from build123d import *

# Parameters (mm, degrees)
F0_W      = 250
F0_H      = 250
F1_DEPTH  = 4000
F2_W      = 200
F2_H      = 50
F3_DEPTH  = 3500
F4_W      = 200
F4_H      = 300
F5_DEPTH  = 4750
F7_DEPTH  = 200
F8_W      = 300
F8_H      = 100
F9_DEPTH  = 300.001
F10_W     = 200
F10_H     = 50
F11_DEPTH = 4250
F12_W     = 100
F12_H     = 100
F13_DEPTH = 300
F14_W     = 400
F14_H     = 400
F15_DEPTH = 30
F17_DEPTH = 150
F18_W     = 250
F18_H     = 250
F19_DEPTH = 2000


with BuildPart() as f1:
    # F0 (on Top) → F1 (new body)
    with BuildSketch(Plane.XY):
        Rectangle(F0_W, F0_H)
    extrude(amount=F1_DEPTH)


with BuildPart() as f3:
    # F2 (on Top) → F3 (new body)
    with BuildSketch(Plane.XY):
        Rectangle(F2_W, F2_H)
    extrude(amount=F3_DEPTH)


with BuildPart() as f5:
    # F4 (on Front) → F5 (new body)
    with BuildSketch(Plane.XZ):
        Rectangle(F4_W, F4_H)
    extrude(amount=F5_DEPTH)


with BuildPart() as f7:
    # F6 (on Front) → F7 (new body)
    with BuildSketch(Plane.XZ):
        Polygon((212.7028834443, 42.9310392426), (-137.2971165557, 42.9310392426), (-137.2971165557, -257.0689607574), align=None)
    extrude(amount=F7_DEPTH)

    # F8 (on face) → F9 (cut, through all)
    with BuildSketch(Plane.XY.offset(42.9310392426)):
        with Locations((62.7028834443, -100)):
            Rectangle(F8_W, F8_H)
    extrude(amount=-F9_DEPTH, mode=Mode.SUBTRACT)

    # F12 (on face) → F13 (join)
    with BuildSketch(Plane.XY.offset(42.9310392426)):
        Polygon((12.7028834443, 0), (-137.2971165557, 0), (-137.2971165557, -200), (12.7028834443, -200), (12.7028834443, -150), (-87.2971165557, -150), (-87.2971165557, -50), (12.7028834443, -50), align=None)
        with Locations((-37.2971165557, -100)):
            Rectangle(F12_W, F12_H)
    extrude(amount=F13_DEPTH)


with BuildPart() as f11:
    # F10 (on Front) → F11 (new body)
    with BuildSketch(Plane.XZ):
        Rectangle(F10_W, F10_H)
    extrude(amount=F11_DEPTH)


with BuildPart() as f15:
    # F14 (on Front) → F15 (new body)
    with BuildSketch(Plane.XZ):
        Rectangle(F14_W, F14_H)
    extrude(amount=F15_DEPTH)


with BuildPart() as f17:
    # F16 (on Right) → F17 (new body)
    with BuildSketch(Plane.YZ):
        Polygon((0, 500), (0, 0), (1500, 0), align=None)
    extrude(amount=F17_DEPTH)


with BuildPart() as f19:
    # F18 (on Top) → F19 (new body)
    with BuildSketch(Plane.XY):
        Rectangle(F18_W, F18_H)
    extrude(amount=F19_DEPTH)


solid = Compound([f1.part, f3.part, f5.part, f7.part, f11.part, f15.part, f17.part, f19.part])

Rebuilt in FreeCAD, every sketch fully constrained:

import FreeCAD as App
import Part
import Sketcher
Q = App.Units.Quantity

doc = App.newDocument("Part")
body = doc.addObject("PartDesign::Body", "Body")

# Sketch on XY plane
sketch1 = body.newObject("Sketcher::SketchObject", "Sketch")
sketch1.AttachmentSupport = (doc.getObject("XY_Plane"), [""])
sketch1.MapMode = "FlatFace"
sketch1.addGeometry([
    Part.LineSegment(App.Vector(-125, 125, 0), App.Vector(-125, -125, 0)),
    Part.LineSegment(App.Vector(-125, -125, 0), App.Vector(125, -125, 0)),
    Part.LineSegment(App.Vector(125, -125, 0), App.Vector(125, 125, 0)),
    Part.LineSegment(App.Vector(125, 125, 0), App.Vector(-125, 125, 0)),
], False)
sketch1.addConstraint([
    Sketcher.Constraint("Coincident", 0, 2, 1, 1),
    Sketcher.Constraint("Coincident", 1, 2, 2, 1),
    Sketcher.Constraint("Coincident", 2, 2, 3, 1),
    Sketcher.Constraint("Coincident", 3, 2, 0, 1),
    Sketcher.Constraint("Vertical", 0),
    Sketcher.Constraint("Horizontal", 1),
    Sketcher.Constraint("Vertical", 2),
    Sketcher.Constraint("Horizontal", 3),
    Sketcher.Constraint("Symmetric", 0, 2, 2, 2, -1, 1),
    Sketcher.Constraint("Equal", 3, 0),
    Sketcher.Constraint("DistanceX", 1, 1, 1, 2, Q("250 mm")),
])
pad1 = body.newObject("PartDesign::Pad", "Pad")
pad1.Profile = sketch1
pad1.Length = 4000
body2 = doc.addObject("PartDesign::Body", "Body001")

# Sketch on XY plane
sketch2 = body2.newObject("Sketcher::SketchObject", "Sketch001")
sketch2.AttachmentSupport = (doc.getObject("XY_Plane001"), [""])
sketch2.MapMode = "FlatFace"
sketch2.addGeometry([
    Part.LineSegment(App.Vector(-100, 25, 0), App.Vector(-100, -25, 0)),
    Part.LineSegment(App.Vector(-100, -25, 0), App.Vector(100, -25, 0)),
    Part.LineSegment(App.Vector(100, -25, 0), App.Vector(100, 25, 0)),
    Part.LineSegment(App.Vector(100, 25, 0), App.Vector(-100, 25, 0)),
], False)
sketch2.addConstraint([
    Sketcher.Constraint("Coincident", 0, 2, 1, 1),
    Sketcher.Constraint("Coincident", 1, 2, 2, 1),
    Sketcher.Constraint("Coincident", 2, 2, 3, 1),
    Sketcher.Constraint("Coincident", 3, 2, 0, 1),
    Sketcher.Constraint("Vertical", 0),
    Sketcher.Constraint("Horizontal", 1),
    Sketcher.Constraint("Vertical", 2),
    Sketcher.Constraint("Horizontal", 3),
    Sketcher.Constraint("Symmetric", 0, 2, 2, 2, -1, 1),
    Sketcher.Constraint("DistanceX", 1, 1, 1, 2, Q("200 mm")),
    Sketcher.Constraint("DistanceY", 0, 2, 0, 1, Q("50 mm")),
])
pad2 = body2.newObject("PartDesign::Pad", "Pad001")
pad2.Profile = sketch2
pad2.Length = 3500
body3 = doc.addObject("PartDesign::Body", "Body002")

# Sketch on XZ plane
sketch3 = body3.newObject("Sketcher::SketchObject", "Sketch002")
sketch3.AttachmentSupport = (doc.getObject("XZ_Plane002"), [""])
sketch3.MapMode = "FlatFace"
sketch3.addGeometry([
    Part.LineSegment(App.Vector(-100, 150, 0), App.Vector(-100, -150, 0)),
    Part.LineSegment(App.Vector(-100, -150, 0), App.Vector(100, -150, 0)),
    Part.LineSegment(App.Vector(100, -150, 0), App.Vector(100, 150, 0)),
    Part.LineSegment(App.Vector(100, 150, 0), App.Vector(-100, 150, 0)),
], False)
sketch3.addConstraint([
    Sketcher.Constraint("Coincident", 0, 2, 1, 1),
    Sketcher.Constraint("Coincident", 1, 2, 2, 1),
    Sketcher.Constraint("Coincident", 2, 2, 3, 1),
    Sketcher.Constraint("Coincident", 3, 2, 0, 1),
    Sketcher.Constraint("Vertical", 0),
    Sketcher.Constraint("Horizontal", 1),
    Sketcher.Constraint("Vertical", 2),
    Sketcher.Constraint("Horizontal", 3),
    Sketcher.Constraint("Symmetric", 0, 2, 2, 2, -1, 1),
    Sketcher.Constraint("DistanceX", 1, 1, 1, 2, Q("200 mm")),
    Sketcher.Constraint("DistanceY", 0, 2, 0, 1, Q("300 mm")),
])
pad3 = body3.newObject("PartDesign::Pad", "Pad002")
pad3.Profile = sketch3
pad3.Length = 4750
body4 = doc.addObject("PartDesign::Body", "Body003")

# Sketch on XZ plane
sketch4 = body4.newObject("Sketcher::SketchObject", "Sketch003")
sketch4.AttachmentSupport = (doc.getObject("XZ_Plane003"), [""])
sketch4.MapMode = "FlatFace"
sketch4.addGeometry([
    Part.LineSegment(App.Vector(212.702883, 42.931039, 0), App.Vector(-137.297117, 42.931039, 0)),
    Part.LineSegment(App.Vector(-137.297117, 42.931039, 0), App.Vector(-137.297117, -257.068961, 0)),
    Part.LineSegment(App.Vector(-137.297117, -257.068961, 0), App.Vector(212.702883, 42.931039, 0)),
], False)
sketch4.addConstraint([
    Sketcher.Constraint("Coincident", 0, 2, 1, 1),
    Sketcher.Constraint("Coincident", 1, 2, 2, 1),
    Sketcher.Constraint("Coincident", 2, 2, 0, 1),
    Sketcher.Constraint("Horizontal", 0),
    Sketcher.Constraint("Vertical", 1),
    Sketcher.Constraint("DistanceX", 0, 2, 0, 1, Q("350 mm")),
    Sketcher.Constraint("DistanceY", 1, 2, 1, 1, Q("300 mm")),
    Sketcher.Constraint("DistanceY", -1, 1, 0, 2, Q("42.931039 mm")),
    Sketcher.Constraint("DistanceX", 0, 2, -1, 1, Q("137.297117 mm")),
])
pad4 = body4.newObject("PartDesign::Pad", "Pad003")
pad4.Profile = sketch4
pad4.Length = 200

# Sketch on XY plane
sketch5 = body4.newObject("Sketcher::SketchObject", "Sketch004")
sketch5.AttachmentSupport = (doc.getObject("XY_Plane003"), [""])
sketch5.MapMode = "FlatFace"
sketch5.AttachmentOffset = App.Placement(App.Vector(0, 0, 42.931039), App.Rotation())
sketch5.addGeometry([
    Part.LineSegment(App.Vector(-87.297117, -50, 0), App.Vector(-87.297117, -150, 0)),
    Part.LineSegment(App.Vector(-87.297117, -150, 0), App.Vector(212.702883, -150, 0)),
    Part.LineSegment(App.Vector(212.702883, -150, 0), App.Vector(212.702883, -50, 0)),
    Part.LineSegment(App.Vector(212.702883, -50, 0), App.Vector(-87.297117, -50, 0)),
], False)
sketch5.addConstraint([
    Sketcher.Constraint("Coincident", 0, 2, 1, 1),
    Sketcher.Constraint("Coincident", 1, 2, 2, 1),
    Sketcher.Constraint("Coincident", 2, 2, 3, 1),
    Sketcher.Constraint("Coincident", 3, 2, 0, 1),
    Sketcher.Constraint("Vertical", 0),
    Sketcher.Constraint("Horizontal", 1),
    Sketcher.Constraint("Vertical", 2),
    Sketcher.Constraint("Horizontal", 3),
    Sketcher.Constraint("DistanceX", 1, 1, 1, 2, Q("300 mm")),
    Sketcher.Constraint("DistanceY", 0, 2, 0, 1, Q("100 mm")),
    Sketcher.Constraint("DistanceY", 0, 2, -1, 1, Q("150 mm")),
    Sketcher.Constraint("DistanceX", 0, 2, -1, 1, Q("87.297117 mm")),
])
pocket1 = body4.newObject("PartDesign::Pocket", "Pocket")
pocket1.Profile = sketch5
pocket1.Type = "ThroughAll"

# Sketch on XY plane
sketch6 = body4.newObject("Sketcher::SketchObject", "Sketch005")
sketch6.AttachmentSupport = (doc.getObject("XY_Plane003"), [""])
sketch6.MapMode = "FlatFace"
sketch6.AttachmentOffset = App.Placement(App.Vector(0, 0, 42.931039), App.Rotation())
sketch6.addGeometry([
    Part.LineSegment(App.Vector(12.702883, 0, 0), App.Vector(-137.297117, 0, 0)),
    Part.LineSegment(App.Vector(-137.297117, 0, 0), App.Vector(-137.297117, -200, 0)),
    Part.LineSegment(App.Vector(-137.297117, -200, 0), App.Vector(12.702883, -200, 0)),
    Part.LineSegment(App.Vector(12.702883, -200, 0), App.Vector(12.702883, 0, 0)),
], False)
sketch6.addConstraint([
    Sketcher.Constraint("Coincident", 0, 2, 1, 1),
    Sketcher.Constraint("Coincident", 1, 2, 2, 1),
    Sketcher.Constraint("Coincident", 2, 2, 3, 1),
    Sketcher.Constraint("Coincident", 3, 2, 0, 1),
    Sketcher.Constraint("Horizontal", 0),
    Sketcher.Constraint("Vertical", 1),
    Sketcher.Constraint("Horizontal", 2),
    Sketcher.Constraint("Vertical", 3),
    Sketcher.Constraint("PointOnObject", 0, 2, -1),
    Sketcher.Constraint("DistanceX", 0, 2, 0, 1, Q("150 mm")),
    Sketcher.Constraint("DistanceY", 1, 2, 1, 1, Q("200 mm")),
    Sketcher.Constraint("DistanceX", 0, 2, -1, 1, Q("137.297117 mm")),
])
pad5 = body4.newObject("PartDesign::Pad", "Pad004")
pad5.Profile = sketch6
pad5.Length = 300
body5 = doc.addObject("PartDesign::Body", "Body004")

# Sketch on XZ plane
sketch7 = body5.newObject("Sketcher::SketchObject", "Sketch006")
sketch7.AttachmentSupport = (doc.getObject("XZ_Plane004"), [""])
sketch7.MapMode = "FlatFace"
sketch7.addGeometry([
    Part.LineSegment(App.Vector(-100, 25, 0), App.Vector(-100, -25, 0)),
    Part.LineSegment(App.Vector(-100, -25, 0), App.Vector(100, -25, 0)),
    Part.LineSegment(App.Vector(100, -25, 0), App.Vector(100, 25, 0)),
    Part.LineSegment(App.Vector(100, 25, 0), App.Vector(-100, 25, 0)),
], False)
sketch7.addConstraint([
    Sketcher.Constraint("Coincident", 0, 2, 1, 1),
    Sketcher.Constraint("Coincident", 1, 2, 2, 1),
    Sketcher.Constraint("Coincident", 2, 2, 3, 1),
    Sketcher.Constraint("Coincident", 3, 2, 0, 1),
    Sketcher.Constraint("Vertical", 0),
    Sketcher.Constraint("Horizontal", 1),
    Sketcher.Constraint("Vertical", 2),
    Sketcher.Constraint("Horizontal", 3),
    Sketcher.Constraint("Symmetric", 0, 2, 2, 2, -1, 1),
    Sketcher.Constraint("DistanceX", 1, 1, 1, 2, Q("200 mm")),
    Sketcher.Constraint("DistanceY", 0, 2, 0, 1, Q("50 mm")),
])
pad6 = body5.newObject("PartDesign::Pad", "Pad005")
pad6.Profile = sketch7
pad6.Length = 4250
body6 = doc.addObject("PartDesign::Body", "Body005")

# Sketch on XZ plane
sketch8 = body6.newObject("Sketcher::SketchObject", "Sketch007")
sketch8.AttachmentSupport = (doc.getObject("XZ_Plane005"), [""])
sketch8.MapMode = "FlatFace"
sketch8.addGeometry([
    Part.LineSegment(App.Vector(-200, 200, 0), App.Vector(-200, -200, 0)),
    Part.LineSegment(App.Vector(-200, -200, 0), App.Vector(200, -200, 0)),
    Part.LineSegment(App.Vector(200, -200, 0), App.Vector(200, 200, 0)),
    Part.LineSegment(App.Vector(200, 200, 0), App.Vector(-200, 200, 0)),
], False)
sketch8.addConstraint([
    Sketcher.Constraint("Coincident", 0, 2, 1, 1),
    Sketcher.Constraint("Coincident", 1, 2, 2, 1),
    Sketcher.Constraint("Coincident", 2, 2, 3, 1),
    Sketcher.Constraint("Coincident", 3, 2, 0, 1),
    Sketcher.Constraint("Vertical", 0),
    Sketcher.Constraint("Horizontal", 1),
    Sketcher.Constraint("Vertical", 2),
    Sketcher.Constraint("Horizontal", 3),
    Sketcher.Constraint("Symmetric", 0, 2, 2, 2, -1, 1),
    Sketcher.Constraint("Equal", 3, 0),
    Sketcher.Constraint("DistanceX", 1, 1, 1, 2, Q("400 mm")),
])
pad7 = body6.newObject("PartDesign::Pad", "Pad006")
pad7.Profile = sketch8
pad7.Length = 30
body7 = doc.addObject("PartDesign::Body", "Body006")

# Sketch on YZ plane
sketch9 = body7.newObject("Sketcher::SketchObject", "Sketch008")
sketch9.AttachmentSupport = (doc.getObject("YZ_Plane006"), [""])
sketch9.MapMode = "FlatFace"
sketch9.addGeometry([
    Part.LineSegment(App.Vector(0, 500, 0), App.Vector(0, 0, 0)),
    Part.LineSegment(App.Vector(0, 0, 0), App.Vector(1500, 0, 0)),
    Part.LineSegment(App.Vector(1500, 0, 0), App.Vector(0, 500, 0)),
], False)
sketch9.addConstraint([
    Sketcher.Constraint("Coincident", 0, 2, 1, 1),
    Sketcher.Constraint("Coincident", 1, 2, 2, 1),
    Sketcher.Constraint("Coincident", 2, 2, 0, 1),
    Sketcher.Constraint("Vertical", 0),
    Sketcher.Constraint("Horizontal", 1),
    Sketcher.Constraint("Coincident", 0, 2, -1, 1),
    Sketcher.Constraint("DistanceX", 1, 1, 1, 2, Q("1500 mm")),
    Sketcher.Constraint("DistanceY", 0, 2, 0, 1, Q("500 mm")),
])
pad8 = body7.newObject("PartDesign::Pad", "Pad007")
pad8.Profile = sketch9
pad8.Length = 150
body8 = doc.addObject("PartDesign::Body", "Body007")

# Sketch on XY plane
sketch10 = body8.newObject("Sketcher::SketchObject", "Sketch009")
sketch10.AttachmentSupport = (doc.getObject("XY_Plane007"), [""])
sketch10.MapMode = "FlatFace"
sketch10.addGeometry([
    Part.LineSegment(App.Vector(-125, 125, 0), App.Vector(-125, -125, 0)),
    Part.LineSegment(App.Vector(-125, -125, 0), App.Vector(125, -125, 0)),
    Part.LineSegment(App.Vector(125, -125, 0), App.Vector(125, 125, 0)),
    Part.LineSegment(App.Vector(125, 125, 0), App.Vector(-125, 125, 0)),
], False)
sketch10.addConstraint([
    Sketcher.Constraint("Coincident", 0, 2, 1, 1),
    Sketcher.Constraint("Coincident", 1, 2, 2, 1),
    Sketcher.Constraint("Coincident", 2, 2, 3, 1),
    Sketcher.Constraint("Coincident", 3, 2, 0, 1),
    Sketcher.Constraint("Vertical", 0),
    Sketcher.Constraint("Horizontal", 1),
    Sketcher.Constraint("Vertical", 2),
    Sketcher.Constraint("Horizontal", 3),
    Sketcher.Constraint("Symmetric", 0, 2, 2, 2, -1, 1),
    Sketcher.Constraint("Equal", 3, 0),
    Sketcher.Constraint("DistanceX", 1, 1, 1, 2, Q("250 mm")),
])
pad9 = body8.newObject("PartDesign::Pad", "Pad008")
pad9.Profile = sketch10
pad9.Length = 2000

doc.recompute()
